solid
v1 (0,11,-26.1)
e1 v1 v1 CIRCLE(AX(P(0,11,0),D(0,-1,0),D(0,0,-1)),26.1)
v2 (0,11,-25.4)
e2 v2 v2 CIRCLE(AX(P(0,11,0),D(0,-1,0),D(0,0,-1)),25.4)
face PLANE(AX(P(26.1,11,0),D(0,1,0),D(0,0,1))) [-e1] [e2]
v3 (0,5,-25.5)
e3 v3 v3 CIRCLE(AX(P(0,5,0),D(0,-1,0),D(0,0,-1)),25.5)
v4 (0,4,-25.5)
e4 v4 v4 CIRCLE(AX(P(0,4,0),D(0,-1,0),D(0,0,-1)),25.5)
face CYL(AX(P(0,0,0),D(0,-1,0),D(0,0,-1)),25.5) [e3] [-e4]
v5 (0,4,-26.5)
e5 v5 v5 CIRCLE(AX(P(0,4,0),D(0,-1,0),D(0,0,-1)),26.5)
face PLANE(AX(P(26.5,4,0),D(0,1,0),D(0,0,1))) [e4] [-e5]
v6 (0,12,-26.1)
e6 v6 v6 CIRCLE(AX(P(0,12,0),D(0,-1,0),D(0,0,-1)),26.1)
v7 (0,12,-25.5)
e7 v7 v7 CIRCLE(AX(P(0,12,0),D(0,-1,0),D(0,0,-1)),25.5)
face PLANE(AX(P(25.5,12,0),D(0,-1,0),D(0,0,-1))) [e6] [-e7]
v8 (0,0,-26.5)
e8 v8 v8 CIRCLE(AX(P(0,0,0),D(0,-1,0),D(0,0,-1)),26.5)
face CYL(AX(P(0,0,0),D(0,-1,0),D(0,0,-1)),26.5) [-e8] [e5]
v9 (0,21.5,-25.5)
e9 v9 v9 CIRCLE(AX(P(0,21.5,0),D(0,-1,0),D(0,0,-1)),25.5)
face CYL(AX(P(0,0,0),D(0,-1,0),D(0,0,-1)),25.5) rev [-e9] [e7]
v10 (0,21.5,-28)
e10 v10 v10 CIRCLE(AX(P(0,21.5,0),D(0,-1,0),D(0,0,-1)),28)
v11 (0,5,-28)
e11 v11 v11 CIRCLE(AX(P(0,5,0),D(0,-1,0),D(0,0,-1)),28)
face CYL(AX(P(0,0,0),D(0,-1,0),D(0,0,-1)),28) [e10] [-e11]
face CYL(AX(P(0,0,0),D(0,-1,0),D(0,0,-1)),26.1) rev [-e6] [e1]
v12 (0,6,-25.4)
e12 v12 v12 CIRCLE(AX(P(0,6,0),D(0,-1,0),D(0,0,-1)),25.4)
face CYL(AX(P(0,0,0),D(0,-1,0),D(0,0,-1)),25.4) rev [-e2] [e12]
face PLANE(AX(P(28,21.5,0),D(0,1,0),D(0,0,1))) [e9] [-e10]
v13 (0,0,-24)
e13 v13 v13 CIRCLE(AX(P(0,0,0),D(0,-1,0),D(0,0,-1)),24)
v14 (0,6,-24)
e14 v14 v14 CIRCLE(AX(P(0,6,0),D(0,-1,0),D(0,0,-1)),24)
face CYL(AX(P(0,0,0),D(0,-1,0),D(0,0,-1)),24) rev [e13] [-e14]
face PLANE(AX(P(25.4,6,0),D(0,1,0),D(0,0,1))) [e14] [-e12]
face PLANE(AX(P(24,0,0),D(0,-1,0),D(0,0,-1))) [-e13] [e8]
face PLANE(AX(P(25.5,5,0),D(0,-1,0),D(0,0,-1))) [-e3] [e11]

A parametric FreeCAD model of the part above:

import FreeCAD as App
import Part
import Sketcher
from FreeCAD import Vector
Q = App.Units.Quantity

doc = App.newDocument("Part")
body = doc.addObject("PartDesign::Body", "Body")

# Sketch on XY plane
sketch1 = body.newObject("Sketcher::SketchObject", "Sketch")
sketch1.AttachmentSupport = (doc.getObject("XY_Plane"), [""])
sketch1.MapMode = "FlatFace"
sketch1.addGeometry([
    Part.LineSegment(Vector(24, 0, 0), Vector(26.5, 0, 0)),  # 0
    Part.LineSegment(Vector(26.5, 0, 0), Vector(26.5, 4, 0)),  # 1
    Part.LineSegment(Vector(26.5, 4, 0), Vector(25.5, 4, 0)),  # 2
    Part.LineSegment(Vector(25.5, 4, 0), Vector(25.5, 5, 0)),  # 3
    Part.LineSegment(Vector(25.5, 5, 0), Vector(28, 5, 0)),  # 4
    Part.LineSegment(Vector(28, 5, 0), Vector(28, 21.5, 0)),  # 5
    Part.LineSegment(Vector(28, 21.5, 0), Vector(25.5, 21.5, 0)),  # 6
    Part.LineSegment(Vector(25.5, 21.5, 0), Vector(25.5, 12, 0)),  # 7
    Part.LineSegment(Vector(25.5, 12, 0), Vector(26.1, 12, 0)),  # 8
    Part.LineSegment(Vector(26.1, 12, 0), Vector(26.1, 11, 0)),  # 9
    Part.LineSegment(Vector(26.1, 11, 0), Vector(25.4, 11, 0)),  # 10
    Part.LineSegment(Vector(25.4, 11, 0), Vector(25.4, 6, 0)),  # 11
    Part.LineSegment(Vector(25.4, 6, 0), Vector(24, 6, 0)),  # 12
    Part.LineSegment(Vector(24, 6, 0), Vector(24, 0, 0)),  # 13
], False)
sketch1.addConstraint([
    Sketcher.Constraint("Coincident", 0, 2, 1, 1),
    Sketcher.Constraint("Coincident", 1, 2, 2, 1),
    Sketcher.Constraint("Coincident", 2, 2, 3, 1),
    Sketcher.Constraint("Coincident", 3, 2, 4, 1),
    Sketcher.Constraint("Coincident", 4, 2, 5, 1),
    Sketcher.Constraint("Coincident", 5, 2, 6, 1),
    Sketcher.Constraint("Coincident", 6, 2, 7, 1),
    Sketcher.Constraint("Coincident", 7, 2, 8, 1),
    Sketcher.Constraint("Coincident", 8, 2, 9, 1),
    Sketcher.Constraint("Coincident", 9, 2, 10, 1),
    Sketcher.Constraint("Coincident", 10, 2, 11, 1),
    Sketcher.Constraint("Coincident", 11, 2, 12, 1),
    Sketcher.Constraint("Coincident", 12, 2, 13, 1),
    Sketcher.Constraint("Coincident", 13, 2, 0, 1),
    Sketcher.Constraint("Horizontal", 0),
    Sketcher.Constraint("Vertical", 1),
    Sketcher.Constraint("Horizontal", 2),
    Sketcher.Constraint("Vertical", 3),
    Sketcher.Constraint("Horizontal", 4),
    Sketcher.Constraint("Vertical", 5),
    Sketcher.Constraint("Horizontal", 6),
    Sketcher.Constraint("Vertical", 7),
    Sketcher.Constraint("Horizontal", 8),
    Sketcher.Constraint("Vertical", 9),
    Sketcher.Constraint("Horizontal", 10),
    Sketcher.Constraint("Vertical", 11),
    Sketcher.Constraint("Horizontal", 12),
    Sketcher.Constraint("Vertical", 13),
    Sketcher.Constraint("PointOnObject", 0, 2, -1),
    Sketcher.Constraint("Vertical", 3, 2, 6, 2),
    Sketcher.Constraint("Equal", 0, 4),
    Sketcher.Constraint("Equal", 2, 3),
    Sketcher.Constraint("Equal", 3, 9),
    Sketcher.Constraint("DistanceX", 2, 2, 2, 1, Q("1 mm")),
    Sketcher.Constraint("DistanceY", 1, 1, 1, 2, Q("4 mm")),
    Sketcher.Constraint("DistanceY", 11, 2, 11, 1, Q("5 mm")),
    Sketcher.Constraint("DistanceY", 13, 2, 13, 1, Q("6 mm")),
    Sketcher.Constraint("DistanceX", 0, 1, 0, 2, Q("2.5 mm")),
    Sketcher.Constraint("DistanceX", 8, 1, 8, 2, Q("0.6 mm")),
    Sketcher.Constraint("DistanceX", 10, 2, 10, 1, Q("0.7 mm")),
    Sketcher.Constraint("DistanceY", 5, 1, 5, 2, Q("16.5 mm")),
    Sketcher.Constraint("DistanceX", -1, 1, 4, 2, Q("28 mm")),
])
revolution = body.newObject("PartDesign::Revolution", "Revolution")
revolution.Profile = sketch1
revolution.ReferenceAxis = (sketch1, ["V_Axis"])
revolution.Angle = 360

doc.recompute()
